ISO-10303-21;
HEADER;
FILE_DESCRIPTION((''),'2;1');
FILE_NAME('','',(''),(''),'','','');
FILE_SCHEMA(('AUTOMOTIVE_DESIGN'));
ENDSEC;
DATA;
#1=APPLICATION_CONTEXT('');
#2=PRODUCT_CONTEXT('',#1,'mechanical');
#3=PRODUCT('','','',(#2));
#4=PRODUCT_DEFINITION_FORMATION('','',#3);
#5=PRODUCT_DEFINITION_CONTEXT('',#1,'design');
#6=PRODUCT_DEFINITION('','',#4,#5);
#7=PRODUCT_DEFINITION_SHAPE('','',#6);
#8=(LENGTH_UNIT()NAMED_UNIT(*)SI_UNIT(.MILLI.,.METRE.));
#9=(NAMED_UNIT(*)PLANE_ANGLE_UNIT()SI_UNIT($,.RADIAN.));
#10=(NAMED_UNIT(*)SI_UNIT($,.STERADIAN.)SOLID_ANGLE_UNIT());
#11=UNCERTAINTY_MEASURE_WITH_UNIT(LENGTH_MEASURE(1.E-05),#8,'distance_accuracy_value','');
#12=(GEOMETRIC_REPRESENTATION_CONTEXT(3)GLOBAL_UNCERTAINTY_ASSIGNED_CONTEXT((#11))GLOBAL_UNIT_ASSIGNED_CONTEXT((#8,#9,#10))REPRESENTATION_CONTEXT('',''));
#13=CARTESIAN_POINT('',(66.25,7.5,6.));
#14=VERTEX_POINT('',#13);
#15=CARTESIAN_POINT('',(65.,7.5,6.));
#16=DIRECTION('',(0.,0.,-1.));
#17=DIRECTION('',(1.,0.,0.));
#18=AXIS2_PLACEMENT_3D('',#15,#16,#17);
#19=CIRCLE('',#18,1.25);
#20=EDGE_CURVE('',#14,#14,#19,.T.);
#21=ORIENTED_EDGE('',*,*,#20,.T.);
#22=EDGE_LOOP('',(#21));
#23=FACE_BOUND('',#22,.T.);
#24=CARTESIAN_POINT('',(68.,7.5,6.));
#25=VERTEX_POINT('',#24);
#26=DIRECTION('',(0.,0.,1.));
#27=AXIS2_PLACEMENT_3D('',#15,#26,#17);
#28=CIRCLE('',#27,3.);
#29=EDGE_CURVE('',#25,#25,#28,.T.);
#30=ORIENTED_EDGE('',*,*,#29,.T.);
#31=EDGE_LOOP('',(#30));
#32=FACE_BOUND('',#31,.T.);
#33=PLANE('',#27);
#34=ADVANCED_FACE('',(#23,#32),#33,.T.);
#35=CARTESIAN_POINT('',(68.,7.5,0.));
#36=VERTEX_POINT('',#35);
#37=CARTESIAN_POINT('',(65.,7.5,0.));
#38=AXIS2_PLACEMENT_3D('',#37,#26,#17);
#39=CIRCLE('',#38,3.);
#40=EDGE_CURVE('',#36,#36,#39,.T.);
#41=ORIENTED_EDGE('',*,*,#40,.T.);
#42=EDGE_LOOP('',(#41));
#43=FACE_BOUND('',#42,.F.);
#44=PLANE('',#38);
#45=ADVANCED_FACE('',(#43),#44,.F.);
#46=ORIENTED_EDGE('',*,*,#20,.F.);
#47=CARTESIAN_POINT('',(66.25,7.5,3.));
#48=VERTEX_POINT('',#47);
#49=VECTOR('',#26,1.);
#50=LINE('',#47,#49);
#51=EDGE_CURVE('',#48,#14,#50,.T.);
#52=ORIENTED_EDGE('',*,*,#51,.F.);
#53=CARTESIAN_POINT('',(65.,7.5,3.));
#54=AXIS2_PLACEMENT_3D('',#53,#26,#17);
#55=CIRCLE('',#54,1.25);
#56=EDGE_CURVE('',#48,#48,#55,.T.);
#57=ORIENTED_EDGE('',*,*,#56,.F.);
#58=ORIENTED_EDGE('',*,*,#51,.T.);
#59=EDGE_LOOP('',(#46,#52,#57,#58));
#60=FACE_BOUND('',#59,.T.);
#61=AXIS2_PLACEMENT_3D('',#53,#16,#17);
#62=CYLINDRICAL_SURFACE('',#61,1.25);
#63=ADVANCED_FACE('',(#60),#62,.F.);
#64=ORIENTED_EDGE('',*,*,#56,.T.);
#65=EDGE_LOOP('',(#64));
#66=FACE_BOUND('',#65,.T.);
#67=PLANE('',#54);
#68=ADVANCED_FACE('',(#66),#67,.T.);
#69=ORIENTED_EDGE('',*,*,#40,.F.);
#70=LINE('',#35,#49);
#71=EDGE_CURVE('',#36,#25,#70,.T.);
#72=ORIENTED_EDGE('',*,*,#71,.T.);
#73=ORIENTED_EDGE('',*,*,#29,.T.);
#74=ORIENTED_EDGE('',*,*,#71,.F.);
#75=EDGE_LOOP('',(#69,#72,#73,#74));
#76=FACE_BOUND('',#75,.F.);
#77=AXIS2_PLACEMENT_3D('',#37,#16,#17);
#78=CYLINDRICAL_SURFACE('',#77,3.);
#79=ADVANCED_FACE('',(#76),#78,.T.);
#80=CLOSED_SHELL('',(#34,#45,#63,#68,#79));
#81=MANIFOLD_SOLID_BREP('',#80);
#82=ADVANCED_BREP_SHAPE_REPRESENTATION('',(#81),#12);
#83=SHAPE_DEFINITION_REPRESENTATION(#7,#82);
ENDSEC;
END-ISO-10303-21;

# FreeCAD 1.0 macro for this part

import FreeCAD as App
import Part
import Sketcher

V = App.Vector

doc = App.newDocument("Part")
params = doc.addObject("Spreadsheet::Sheet", "Params")
for row, (alias, value) in enumerate([
    ("sketch1_diameter", "2.5 mm"),
    ("pad1_length", "5 mm"),
    ("sketch2_diameter", "6 mm"),
    ("pad2_length", "6 mm"),
], start=1):
    params.set(f"A{row}", alias)
    params.set(f"B{row}", "=" + value)
    params.setAlias(f"B{row}", alias)

body = doc.addObject("PartDesign::Body", "Body")

sketch1 = body.newObject("Sketcher::SketchObject", "Sketch")
sketch1.AttachmentSupport = (doc.getObject("XY_Plane"), [""])
sketch1.MapMode = "FlatFace"
sketch1.AttachmentOffset = App.Placement(V(0, 0, 3), App.Rotation())
sketch1.addGeometry(Part.Circle(V(30, 14, 0), V(0, 0, 1), 1.2), False)
sketch1.addConstraint([
    Sketcher.Constraint("Diameter", 0, 2.5),
    Sketcher.Constraint("DistanceX", -1, 1, 0, 3, 30.0),
    Sketcher.Constraint("DistanceY", -1, 1, 0, 3, 14.0),
])
sketch1.setExpression("Constraints[0]", "Params.sketch1_diameter")
pad1 = body.newObject("PartDesign::Pad", "Pad")
pad1.Profile = sketch1
pad1.setExpression("Length", "Params.pad1_length")
body2 = doc.addObject("PartDesign::Body", "Body001")

sketch2 = body2.newObject("Sketcher::SketchObject", "Sketch001")
sketch2.AttachmentSupport = (doc.getObject("XY_Plane001"), [""])
sketch2.MapMode = "FlatFace"
sketch2.addGeometry(Part.Circle(V(30, 14, 0), V(0, 0, 1), 3), False)
sketch2.addConstraint([
    Sketcher.Constraint("Diameter", 0, 6.0),
    Sketcher.Constraint("DistanceX", -1, 1, 0, 3, 30.0),
    Sketcher.Constraint("DistanceY", -1, 1, 0, 3, 14.0),
])
sketch2.setExpression("Constraints[0]", "Params.sketch2_diameter")
pad2 = body2.newObject("PartDesign::Pad", "Pad001")
pad2.Profile = sketch2
pad2.setExpression("Length", "Params.pad2_length")
doc.recompute()

boolean = body2.newObject("PartDesign::Boolean", "Boolean")
boolean.Type = "Cut"
boolean.addObjects([body])
body3 = doc.addObject("PartDesign::Body", "Body002")
doc.recompute()

body2.Placement = App.Placement(V(35, -6.5, 0), App.Rotation(V(0, 0, 1), 0))
boolean2 = body3.newObject("PartDesign::Boolean", "Boolean001")
boolean2.Type = "Fuse"
boolean2.addObjects([body2])

doc.recompute()
